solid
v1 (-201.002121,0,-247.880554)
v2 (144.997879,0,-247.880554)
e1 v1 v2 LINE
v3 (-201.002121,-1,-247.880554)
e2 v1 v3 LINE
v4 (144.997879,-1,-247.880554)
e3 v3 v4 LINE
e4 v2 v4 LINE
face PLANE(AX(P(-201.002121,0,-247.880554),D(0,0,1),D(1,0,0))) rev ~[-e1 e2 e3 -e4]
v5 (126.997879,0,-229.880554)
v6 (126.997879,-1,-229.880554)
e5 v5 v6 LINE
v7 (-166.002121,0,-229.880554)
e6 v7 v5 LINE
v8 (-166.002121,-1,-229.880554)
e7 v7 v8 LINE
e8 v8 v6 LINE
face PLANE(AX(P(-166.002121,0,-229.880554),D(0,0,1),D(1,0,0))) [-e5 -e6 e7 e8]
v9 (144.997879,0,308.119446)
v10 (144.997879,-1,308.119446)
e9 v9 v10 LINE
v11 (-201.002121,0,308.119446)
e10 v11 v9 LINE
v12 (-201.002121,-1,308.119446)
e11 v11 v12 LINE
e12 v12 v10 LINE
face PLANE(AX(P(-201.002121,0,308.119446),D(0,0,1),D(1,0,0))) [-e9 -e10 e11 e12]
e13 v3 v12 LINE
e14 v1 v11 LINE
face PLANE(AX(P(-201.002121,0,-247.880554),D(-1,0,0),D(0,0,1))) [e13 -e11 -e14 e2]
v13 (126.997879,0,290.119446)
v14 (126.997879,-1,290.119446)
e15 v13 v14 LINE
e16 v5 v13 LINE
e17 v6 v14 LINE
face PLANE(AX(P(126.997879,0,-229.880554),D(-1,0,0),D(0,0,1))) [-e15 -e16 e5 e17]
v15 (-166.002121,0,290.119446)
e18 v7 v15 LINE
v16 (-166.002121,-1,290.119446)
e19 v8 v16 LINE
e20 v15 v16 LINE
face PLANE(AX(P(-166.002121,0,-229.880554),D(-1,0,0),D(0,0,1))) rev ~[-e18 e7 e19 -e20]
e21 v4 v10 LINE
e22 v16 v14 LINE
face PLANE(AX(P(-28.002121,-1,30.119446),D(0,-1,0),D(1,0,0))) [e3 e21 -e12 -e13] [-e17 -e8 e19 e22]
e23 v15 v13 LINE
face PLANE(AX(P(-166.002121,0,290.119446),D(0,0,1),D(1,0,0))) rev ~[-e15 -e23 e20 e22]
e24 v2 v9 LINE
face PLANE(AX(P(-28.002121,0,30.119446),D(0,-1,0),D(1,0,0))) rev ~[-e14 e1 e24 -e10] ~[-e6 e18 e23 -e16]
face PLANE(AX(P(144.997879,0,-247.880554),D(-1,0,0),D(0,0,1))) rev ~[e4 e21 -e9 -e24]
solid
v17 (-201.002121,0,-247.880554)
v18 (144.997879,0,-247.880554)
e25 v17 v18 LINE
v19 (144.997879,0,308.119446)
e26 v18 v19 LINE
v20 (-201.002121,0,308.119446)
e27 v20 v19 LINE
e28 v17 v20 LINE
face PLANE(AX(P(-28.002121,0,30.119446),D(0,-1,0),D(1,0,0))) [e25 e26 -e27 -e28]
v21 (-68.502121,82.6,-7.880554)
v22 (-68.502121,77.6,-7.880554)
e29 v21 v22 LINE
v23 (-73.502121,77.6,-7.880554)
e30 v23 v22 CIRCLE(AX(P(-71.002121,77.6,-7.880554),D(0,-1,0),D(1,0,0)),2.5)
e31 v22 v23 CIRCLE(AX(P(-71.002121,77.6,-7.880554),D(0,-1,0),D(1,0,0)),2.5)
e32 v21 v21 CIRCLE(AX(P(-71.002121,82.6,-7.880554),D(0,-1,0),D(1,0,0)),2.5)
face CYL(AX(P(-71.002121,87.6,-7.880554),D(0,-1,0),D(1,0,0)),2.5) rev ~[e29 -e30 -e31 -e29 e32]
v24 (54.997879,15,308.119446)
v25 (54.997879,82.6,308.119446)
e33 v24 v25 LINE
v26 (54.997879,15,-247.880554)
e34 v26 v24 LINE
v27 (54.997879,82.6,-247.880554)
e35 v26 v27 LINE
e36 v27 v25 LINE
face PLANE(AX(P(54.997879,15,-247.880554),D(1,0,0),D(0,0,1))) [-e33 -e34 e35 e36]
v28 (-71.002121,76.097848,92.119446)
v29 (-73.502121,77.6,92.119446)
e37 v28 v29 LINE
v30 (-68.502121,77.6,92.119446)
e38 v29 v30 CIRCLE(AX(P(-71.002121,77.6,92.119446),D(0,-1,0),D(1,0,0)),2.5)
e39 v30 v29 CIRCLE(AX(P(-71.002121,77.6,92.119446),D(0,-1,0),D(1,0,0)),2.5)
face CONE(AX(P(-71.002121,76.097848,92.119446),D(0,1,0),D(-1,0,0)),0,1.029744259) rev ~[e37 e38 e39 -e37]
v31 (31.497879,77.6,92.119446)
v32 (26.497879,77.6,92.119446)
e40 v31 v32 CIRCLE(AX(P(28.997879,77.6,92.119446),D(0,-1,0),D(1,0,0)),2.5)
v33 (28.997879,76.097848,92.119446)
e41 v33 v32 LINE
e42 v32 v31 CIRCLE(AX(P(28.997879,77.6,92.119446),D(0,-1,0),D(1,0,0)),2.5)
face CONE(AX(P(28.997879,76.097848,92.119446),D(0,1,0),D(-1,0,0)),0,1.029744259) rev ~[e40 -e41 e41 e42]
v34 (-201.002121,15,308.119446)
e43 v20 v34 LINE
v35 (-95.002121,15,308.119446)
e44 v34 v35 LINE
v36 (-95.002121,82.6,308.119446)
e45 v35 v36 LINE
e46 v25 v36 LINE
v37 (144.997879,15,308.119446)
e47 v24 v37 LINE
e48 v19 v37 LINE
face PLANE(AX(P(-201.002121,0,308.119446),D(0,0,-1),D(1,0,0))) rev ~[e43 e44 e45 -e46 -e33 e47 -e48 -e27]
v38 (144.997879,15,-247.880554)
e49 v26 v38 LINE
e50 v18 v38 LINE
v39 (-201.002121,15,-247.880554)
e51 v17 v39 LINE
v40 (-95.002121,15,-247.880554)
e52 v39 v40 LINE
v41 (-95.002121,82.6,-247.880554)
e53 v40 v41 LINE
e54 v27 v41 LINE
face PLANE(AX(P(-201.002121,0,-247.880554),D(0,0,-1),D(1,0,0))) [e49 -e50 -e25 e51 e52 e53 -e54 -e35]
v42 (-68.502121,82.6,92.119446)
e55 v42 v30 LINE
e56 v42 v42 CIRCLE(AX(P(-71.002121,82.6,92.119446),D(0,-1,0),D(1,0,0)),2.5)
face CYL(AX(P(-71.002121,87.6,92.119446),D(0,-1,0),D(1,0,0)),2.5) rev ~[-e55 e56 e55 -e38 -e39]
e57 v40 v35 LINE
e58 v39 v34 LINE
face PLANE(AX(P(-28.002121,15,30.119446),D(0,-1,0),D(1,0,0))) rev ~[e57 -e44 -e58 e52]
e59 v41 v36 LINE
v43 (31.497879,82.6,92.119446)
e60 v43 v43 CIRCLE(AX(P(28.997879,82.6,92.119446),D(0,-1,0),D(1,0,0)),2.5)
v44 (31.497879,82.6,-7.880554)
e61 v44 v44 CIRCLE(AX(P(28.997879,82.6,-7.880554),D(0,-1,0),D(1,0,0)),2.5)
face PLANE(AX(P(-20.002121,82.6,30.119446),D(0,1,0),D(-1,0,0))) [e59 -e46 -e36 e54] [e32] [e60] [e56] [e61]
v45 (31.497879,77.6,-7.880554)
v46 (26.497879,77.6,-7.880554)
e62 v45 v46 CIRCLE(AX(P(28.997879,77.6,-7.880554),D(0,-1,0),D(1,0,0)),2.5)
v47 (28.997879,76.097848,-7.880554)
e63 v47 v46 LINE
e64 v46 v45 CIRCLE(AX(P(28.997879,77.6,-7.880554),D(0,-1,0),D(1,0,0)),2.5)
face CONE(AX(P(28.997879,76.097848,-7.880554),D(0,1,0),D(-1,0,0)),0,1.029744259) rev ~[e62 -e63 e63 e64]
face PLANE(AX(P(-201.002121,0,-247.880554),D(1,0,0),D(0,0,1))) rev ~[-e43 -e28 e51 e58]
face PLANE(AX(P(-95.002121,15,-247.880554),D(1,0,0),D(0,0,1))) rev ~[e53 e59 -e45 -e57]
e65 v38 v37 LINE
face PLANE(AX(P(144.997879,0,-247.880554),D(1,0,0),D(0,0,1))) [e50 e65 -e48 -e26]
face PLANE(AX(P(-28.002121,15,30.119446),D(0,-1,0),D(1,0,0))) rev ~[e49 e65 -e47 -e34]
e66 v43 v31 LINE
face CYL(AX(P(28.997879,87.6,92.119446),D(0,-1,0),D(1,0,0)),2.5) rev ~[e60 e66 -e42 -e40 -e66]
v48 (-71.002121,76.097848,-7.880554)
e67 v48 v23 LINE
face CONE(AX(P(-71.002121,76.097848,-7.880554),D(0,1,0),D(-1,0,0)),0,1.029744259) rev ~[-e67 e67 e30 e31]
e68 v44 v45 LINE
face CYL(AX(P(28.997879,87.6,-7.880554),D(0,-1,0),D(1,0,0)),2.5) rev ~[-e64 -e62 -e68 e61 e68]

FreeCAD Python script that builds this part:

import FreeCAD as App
import Part
import Sketcher

V = App.Vector


def add_polygon(sketch, points):
    """Adds a closed chain of lines whose ends are joined by coincident constraints."""
    first, n = sketch.GeometryCount, len(points)
    for a, b in zip(points, points[1:] + points[:1]):
        sketch.addGeometry(Part.LineSegment(App.Vector(*a, 0), App.Vector(*b, 0)), False)
    for i in range(n):
        sketch.addConstraint(Sketcher.Constraint("Coincident", first + i, 2, first + (i + 1) % n, 1))

doc = App.newDocument("Part")
body = doc.addObject("PartDesign::Body", "Body")

# Sketch on XZ plane
sketch1 = doc.addObject("Sketcher::SketchObject", "Sketch")
body.addObject(sketch1)
sketch1.AttachmentSupport = (doc.XZ_Plane, [""])
sketch1.MapMode = "FlatFace"
add_polygon(sketch1, [(-201, 308), (-201, -248), (145, -248), (145, 308)])  # lines 0-3
sketch1.addConstraint(Sketcher.Constraint("Vertical", 0))
sketch1.addConstraint(Sketcher.Constraint("Horizontal", 1))
sketch1.addConstraint(Sketcher.Constraint("Vertical", 2))
sketch1.addConstraint(Sketcher.Constraint("Horizontal", 3))
sketch1.addConstraint(Sketcher.Constraint("DistanceX", 1, 1, 1, 2, 346.0))
sketch1.addConstraint(Sketcher.Constraint("DistanceY", 0, 2, 0, 1, 556.0))
sketch1.addConstraint(Sketcher.Constraint("DistanceX", 0, 2, -1, 1, 201.002121))
sketch1.addConstraint(Sketcher.Constraint("DistanceY", 0, 2, -1, 1, 247.880554))
pad1 = doc.addObject("PartDesign::Pad", "Pad")
body.addObject(pad1)
pad1.Profile = sketch1
pad1.Length = 15
pad1.Reversed = True

# Sketch on XZ plane
sketch2 = doc.addObject("Sketcher::SketchObject", "Sketch001")
body.addObject(sketch2)
sketch2.AttachmentSupport = (doc.XZ_Plane, [""])
sketch2.MapMode = "FlatFace"
sketch2.AttachmentOffset = App.Placement(V(0, 0, -15), App.Rotation())
add_polygon(sketch2, [(55, 308), (55, -248), (-95, -248), (-95, 308)])  # lines 0-3
sketch2.addConstraint(Sketcher.Constraint("Vertical", 0))
sketch2.addConstraint(Sketcher.Constraint("Horizontal", 1))
sketch2.addConstraint(Sketcher.Constraint("Vertical", 2))
sketch2.addConstraint(Sketcher.Constraint("Horizontal", 3))
sketch2.addConstraint(Sketcher.Constraint("DistanceX", 1, 2, 1, 1, 150.0))
sketch2.addConstraint(Sketcher.Constraint("DistanceY", 0, 2, 0, 1, 556.0))
sketch2.addConstraint(Sketcher.Constraint("DistanceX", -1, 1, 0, 2, 54.997879))
sketch2.addConstraint(Sketcher.Constraint("DistanceY", 0, 2, -1, 1, 247.880554))
pad2 = doc.addObject("PartDesign::Pad", "Pad001")
body.addObject(pad2)
pad2.Profile = sketch2
pad2.Length = 67.6
pad2.Reversed = True

# Sketch on XZ plane
sketch3 = doc.addObject("Sketcher::SketchObject", "Sketch002")
body.addObject(sketch3)
sketch3.AttachmentSupport = (doc.XZ_Plane, [""])
sketch3.MapMode = "FlatFace"
sketch3.AttachmentOffset = App.Placement(V(0, 0, -82.6), App.Rotation())
sketch3.addGeometry(Part.Circle(V(29, 92.1, 0), V(0, 0, 1), 2.5), False)
sketch3.addGeometry(Part.Circle(V(-71, 92.1, 0), V(0, 0, 1), 2.5), False)
sketch3.addGeometry(Part.Circle(V(-71, -7.9, 0), V(0, 0, 1), 2.5), False)
sketch3.addGeometry(Part.Circle(V(29, -7.9, 0), V(0, 0, 1), 2.5), False)
sketch3.addConstraint(Sketcher.Constraint("Equal", 0, 1))
sketch3.addConstraint(Sketcher.Constraint("Equal", 1, 2))
sketch3.addConstraint(Sketcher.Constraint("Equal", 2, 3))
sketch3.addConstraint(Sketcher.Constraint("Horizontal", 0, 3, 1, 3))
sketch3.addConstraint(Sketcher.Constraint("Horizontal", 2, 3, 3, 3))
sketch3.addConstraint(Sketcher.Constraint("Vertical", 1, 3, 2, 3))
sketch3.addConstraint(Sketcher.Constraint("Vertical", 0, 3, 3, 3))
sketch3.addConstraint(Sketcher.Constraint("Diameter", 0, 5.0))
sketch3.addConstraint(Sketcher.Constraint("DistanceX", 1, 3, 0, 3, 100.0))
sketch3.addConstraint(Sketcher.Constraint("DistanceY", 2, 3, 1, 3, 100.0))
sketch3.addConstraint(Sketcher.Constraint("DistanceX", -1, 1, 0, 3, 28.997879))
sketch3.addConstraint(Sketcher.Constraint("DistanceY", -1, 1, 0, 3, 92.119446))
doc.recompute()
hole = doc.addObject("PartDesign::Hole", "Hole")
body.addObject(hole)
hole.Profile = sketch3
hole.ThreadType = "None"
hole.Diameter = 5
hole.DepthType = "Dimension"
hole.Depth = 5
hole.DrillPoint = "Angled"
hole.DrillPointAngle = 118
hole.Reversed = True
body2 = doc.addObject("PartDesign::Body", "Body001")

# Sketch on XZ plane
sketch4 = doc.addObject("Sketcher::SketchObject", "Sketch003")
body2.addObject(sketch4)
sketch4.AttachmentSupport = (doc.getObject("XZ_Plane001"), [""])
sketch4.MapMode = "FlatFace"
add_polygon(sketch4, [(-201, 308), (-201, -248), (145, -248), (145, 308)])  # lines 0-3
add_polygon(sketch4, [(127, -230), (-166, -230), (-166, 290), (127, 290)])  # lines 4-7
sketch4.addConstraint(Sketcher.Constraint("Vertical", 0))
sketch4.addConstraint(Sketcher.Constraint("Horizontal", 1))
sketch4.addConstraint(Sketcher.Constraint("Vertical", 2))
sketch4.addConstraint(Sketcher.Constraint("Horizontal", 3))
sketch4.addConstraint(Sketcher.Constraint("Horizontal", 4))
sketch4.addConstraint(Sketcher.Constraint("Vertical", 5))
sketch4.addConstraint(Sketcher.Constraint("Horizontal", 6))
sketch4.addConstraint(Sketcher.Constraint("Vertical", 7))
sketch4.addConstraint(Sketcher.Constraint("DistanceX", 1, 1, 1, 2, 346.0))
sketch4.addConstraint(Sketcher.Constraint("DistanceX", 4, 2, 4, 1, 293.0))
sketch4.addConstraint(Sketcher.Constraint("DistanceY", 0, 2, 0, 1, 556.0))
sketch4.addConstraint(Sketcher.Constraint("DistanceY", 5, 1, 5, 2, 520.0))
sketch4.addConstraint(Sketcher.Constraint("DistanceX", 0, 2, 4, 2, 35.0))
sketch4.addConstraint(Sketcher.Constraint("DistanceY", 0, 2, 4, 2, 18.0))
sketch4.addConstraint(Sketcher.Constraint("DistanceX", 0, 2, -1, 1, 201.002121))
sketch4.addConstraint(Sketcher.Constraint("DistanceY", 0, 2, -1, 1, 247.880554))
pad3 = doc.addObject("PartDesign::Pad", "Pad002")
body2.addObject(pad3)
pad3.Profile = sketch4
pad3.Length = 1

doc.recompute()
